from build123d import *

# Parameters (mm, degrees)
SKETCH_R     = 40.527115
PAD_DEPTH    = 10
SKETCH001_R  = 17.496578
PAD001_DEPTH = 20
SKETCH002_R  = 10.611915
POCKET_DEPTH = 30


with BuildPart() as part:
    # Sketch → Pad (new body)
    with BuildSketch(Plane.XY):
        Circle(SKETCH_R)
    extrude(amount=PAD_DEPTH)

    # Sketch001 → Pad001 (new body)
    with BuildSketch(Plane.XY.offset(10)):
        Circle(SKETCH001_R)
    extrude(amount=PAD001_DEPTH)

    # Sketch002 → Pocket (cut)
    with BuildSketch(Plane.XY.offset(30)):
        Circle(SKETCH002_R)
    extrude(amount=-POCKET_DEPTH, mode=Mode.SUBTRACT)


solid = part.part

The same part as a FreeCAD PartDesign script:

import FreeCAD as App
import Part
import Sketcher
from FreeCAD import Vector

doc = App.newDocument("Part")
body = doc.addObject("PartDesign::Body", "Body")

# Sketch on XY plane
sketch1 = body.newObject("Sketcher::SketchObject", "Sketch")
sketch1.AttachmentSupport = (doc.getObject("XY_Plane"), [""])
sketch1.MapMode = "FlatFace"
sketch1.addGeometry(Part.Circle(Vector(0, 0, 0), Vector(0, 0, 1), 41), False)
sketch1.addConstraint([
    Sketcher.Constraint("Coincident", 0, 3, -1, 1),
    Sketcher.Constraint("Diameter", 0, 81.05423),
])
pad1 = body.newObject("PartDesign::Pad", "Pad")
pad1.Profile = sketch1
pad1.Length = 10

# Sketch on XY plane
sketch2 = body.newObject("Sketcher::SketchObject", "Sketch001")
sketch2.AttachmentSupport = (doc.getObject("XY_Plane"), [""])
sketch2.MapMode = "FlatFace"
sketch2.AttachmentOffset = App.Placement(Vector(0, 0, 10), App.Rotation())
sketch2.addGeometry(Part.Circle(Vector(0, 0, 0), Vector(0, 0, 1), 17), False)
sketch2.addConstraint([
    Sketcher.Constraint("Coincident", 0, 3, -1, 1),
    Sketcher.Constraint("Diameter", 0, 34.993156),
])
pad2 = body.newObject("PartDesign::Pad", "Pad001")
pad2.Profile = sketch2
pad2.Length = 20

# Sketch on XY plane
sketch3 = body.newObject("Sketcher::SketchObject", "Sketch002")
sketch3.AttachmentSupport = (doc.getObject("XY_Plane"), [""])
sketch3.MapMode = "FlatFace"
sketch3.AttachmentOffset = App.Placement(Vector(0, 0, 30), App.Rotation())
sketch3.addGeometry(Part.Circle(Vector(0, 0, 0), Vector(0, 0, 1), 11), False)
sketch3.addConstraint([
    Sketcher.Constraint("Coincident", 0, 3, -1, 1),
    Sketcher.Constraint("Diameter", 0, 21.22383),
])
pocket1 = body.newObject("PartDesign::Pocket", "Pocket")
pocket1.Profile = sketch3
pocket1.Length = 30

doc.recompute()
